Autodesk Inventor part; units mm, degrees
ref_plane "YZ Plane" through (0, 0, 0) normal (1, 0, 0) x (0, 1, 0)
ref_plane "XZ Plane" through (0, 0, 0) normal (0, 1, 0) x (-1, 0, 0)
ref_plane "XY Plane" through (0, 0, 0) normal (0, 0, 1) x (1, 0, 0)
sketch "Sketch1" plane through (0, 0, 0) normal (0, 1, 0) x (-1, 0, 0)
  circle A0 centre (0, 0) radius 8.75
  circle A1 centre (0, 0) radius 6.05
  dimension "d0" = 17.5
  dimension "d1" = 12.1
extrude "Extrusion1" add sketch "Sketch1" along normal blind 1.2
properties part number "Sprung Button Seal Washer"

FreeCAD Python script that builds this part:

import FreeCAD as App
import Part
import Sketcher
from FreeCAD import Vector

doc = App.newDocument("Part")
body = doc.addObject("PartDesign::Body", "Body")

# Sketch on XZ plane
sketch1 = doc.addObject("Sketcher::SketchObject", "Sketch")
body.addObject(sketch1)
sketch1.AttachmentSupport = (doc.XZ_Plane, [""])
sketch1.MapMode = "FlatFace"
sketch1.addGeometry([
    Part.Circle(Vector(0, 0, 0), Vector(0, 0, 1), 9),
    Part.Circle(Vector(0, 0, 0), Vector(0, 0, 1), 6),
], False)
sketch1.addConstraint([
    Sketcher.Constraint("Coincident", 0, 3, -1, 1),
    Sketcher.Constraint("Coincident", 1, 3, -1, 1),
    Sketcher.Constraint("Diameter", 0, 17.5),
    Sketcher.Constraint("Diameter", 1, 12.1),
])
pad1 = doc.addObject("PartDesign::Pad", "Pad")
body.addObject(pad1)
pad1.Profile = sketch1
pad1.Length = 1.2
pad1.Reversed = True

doc.recompute()
